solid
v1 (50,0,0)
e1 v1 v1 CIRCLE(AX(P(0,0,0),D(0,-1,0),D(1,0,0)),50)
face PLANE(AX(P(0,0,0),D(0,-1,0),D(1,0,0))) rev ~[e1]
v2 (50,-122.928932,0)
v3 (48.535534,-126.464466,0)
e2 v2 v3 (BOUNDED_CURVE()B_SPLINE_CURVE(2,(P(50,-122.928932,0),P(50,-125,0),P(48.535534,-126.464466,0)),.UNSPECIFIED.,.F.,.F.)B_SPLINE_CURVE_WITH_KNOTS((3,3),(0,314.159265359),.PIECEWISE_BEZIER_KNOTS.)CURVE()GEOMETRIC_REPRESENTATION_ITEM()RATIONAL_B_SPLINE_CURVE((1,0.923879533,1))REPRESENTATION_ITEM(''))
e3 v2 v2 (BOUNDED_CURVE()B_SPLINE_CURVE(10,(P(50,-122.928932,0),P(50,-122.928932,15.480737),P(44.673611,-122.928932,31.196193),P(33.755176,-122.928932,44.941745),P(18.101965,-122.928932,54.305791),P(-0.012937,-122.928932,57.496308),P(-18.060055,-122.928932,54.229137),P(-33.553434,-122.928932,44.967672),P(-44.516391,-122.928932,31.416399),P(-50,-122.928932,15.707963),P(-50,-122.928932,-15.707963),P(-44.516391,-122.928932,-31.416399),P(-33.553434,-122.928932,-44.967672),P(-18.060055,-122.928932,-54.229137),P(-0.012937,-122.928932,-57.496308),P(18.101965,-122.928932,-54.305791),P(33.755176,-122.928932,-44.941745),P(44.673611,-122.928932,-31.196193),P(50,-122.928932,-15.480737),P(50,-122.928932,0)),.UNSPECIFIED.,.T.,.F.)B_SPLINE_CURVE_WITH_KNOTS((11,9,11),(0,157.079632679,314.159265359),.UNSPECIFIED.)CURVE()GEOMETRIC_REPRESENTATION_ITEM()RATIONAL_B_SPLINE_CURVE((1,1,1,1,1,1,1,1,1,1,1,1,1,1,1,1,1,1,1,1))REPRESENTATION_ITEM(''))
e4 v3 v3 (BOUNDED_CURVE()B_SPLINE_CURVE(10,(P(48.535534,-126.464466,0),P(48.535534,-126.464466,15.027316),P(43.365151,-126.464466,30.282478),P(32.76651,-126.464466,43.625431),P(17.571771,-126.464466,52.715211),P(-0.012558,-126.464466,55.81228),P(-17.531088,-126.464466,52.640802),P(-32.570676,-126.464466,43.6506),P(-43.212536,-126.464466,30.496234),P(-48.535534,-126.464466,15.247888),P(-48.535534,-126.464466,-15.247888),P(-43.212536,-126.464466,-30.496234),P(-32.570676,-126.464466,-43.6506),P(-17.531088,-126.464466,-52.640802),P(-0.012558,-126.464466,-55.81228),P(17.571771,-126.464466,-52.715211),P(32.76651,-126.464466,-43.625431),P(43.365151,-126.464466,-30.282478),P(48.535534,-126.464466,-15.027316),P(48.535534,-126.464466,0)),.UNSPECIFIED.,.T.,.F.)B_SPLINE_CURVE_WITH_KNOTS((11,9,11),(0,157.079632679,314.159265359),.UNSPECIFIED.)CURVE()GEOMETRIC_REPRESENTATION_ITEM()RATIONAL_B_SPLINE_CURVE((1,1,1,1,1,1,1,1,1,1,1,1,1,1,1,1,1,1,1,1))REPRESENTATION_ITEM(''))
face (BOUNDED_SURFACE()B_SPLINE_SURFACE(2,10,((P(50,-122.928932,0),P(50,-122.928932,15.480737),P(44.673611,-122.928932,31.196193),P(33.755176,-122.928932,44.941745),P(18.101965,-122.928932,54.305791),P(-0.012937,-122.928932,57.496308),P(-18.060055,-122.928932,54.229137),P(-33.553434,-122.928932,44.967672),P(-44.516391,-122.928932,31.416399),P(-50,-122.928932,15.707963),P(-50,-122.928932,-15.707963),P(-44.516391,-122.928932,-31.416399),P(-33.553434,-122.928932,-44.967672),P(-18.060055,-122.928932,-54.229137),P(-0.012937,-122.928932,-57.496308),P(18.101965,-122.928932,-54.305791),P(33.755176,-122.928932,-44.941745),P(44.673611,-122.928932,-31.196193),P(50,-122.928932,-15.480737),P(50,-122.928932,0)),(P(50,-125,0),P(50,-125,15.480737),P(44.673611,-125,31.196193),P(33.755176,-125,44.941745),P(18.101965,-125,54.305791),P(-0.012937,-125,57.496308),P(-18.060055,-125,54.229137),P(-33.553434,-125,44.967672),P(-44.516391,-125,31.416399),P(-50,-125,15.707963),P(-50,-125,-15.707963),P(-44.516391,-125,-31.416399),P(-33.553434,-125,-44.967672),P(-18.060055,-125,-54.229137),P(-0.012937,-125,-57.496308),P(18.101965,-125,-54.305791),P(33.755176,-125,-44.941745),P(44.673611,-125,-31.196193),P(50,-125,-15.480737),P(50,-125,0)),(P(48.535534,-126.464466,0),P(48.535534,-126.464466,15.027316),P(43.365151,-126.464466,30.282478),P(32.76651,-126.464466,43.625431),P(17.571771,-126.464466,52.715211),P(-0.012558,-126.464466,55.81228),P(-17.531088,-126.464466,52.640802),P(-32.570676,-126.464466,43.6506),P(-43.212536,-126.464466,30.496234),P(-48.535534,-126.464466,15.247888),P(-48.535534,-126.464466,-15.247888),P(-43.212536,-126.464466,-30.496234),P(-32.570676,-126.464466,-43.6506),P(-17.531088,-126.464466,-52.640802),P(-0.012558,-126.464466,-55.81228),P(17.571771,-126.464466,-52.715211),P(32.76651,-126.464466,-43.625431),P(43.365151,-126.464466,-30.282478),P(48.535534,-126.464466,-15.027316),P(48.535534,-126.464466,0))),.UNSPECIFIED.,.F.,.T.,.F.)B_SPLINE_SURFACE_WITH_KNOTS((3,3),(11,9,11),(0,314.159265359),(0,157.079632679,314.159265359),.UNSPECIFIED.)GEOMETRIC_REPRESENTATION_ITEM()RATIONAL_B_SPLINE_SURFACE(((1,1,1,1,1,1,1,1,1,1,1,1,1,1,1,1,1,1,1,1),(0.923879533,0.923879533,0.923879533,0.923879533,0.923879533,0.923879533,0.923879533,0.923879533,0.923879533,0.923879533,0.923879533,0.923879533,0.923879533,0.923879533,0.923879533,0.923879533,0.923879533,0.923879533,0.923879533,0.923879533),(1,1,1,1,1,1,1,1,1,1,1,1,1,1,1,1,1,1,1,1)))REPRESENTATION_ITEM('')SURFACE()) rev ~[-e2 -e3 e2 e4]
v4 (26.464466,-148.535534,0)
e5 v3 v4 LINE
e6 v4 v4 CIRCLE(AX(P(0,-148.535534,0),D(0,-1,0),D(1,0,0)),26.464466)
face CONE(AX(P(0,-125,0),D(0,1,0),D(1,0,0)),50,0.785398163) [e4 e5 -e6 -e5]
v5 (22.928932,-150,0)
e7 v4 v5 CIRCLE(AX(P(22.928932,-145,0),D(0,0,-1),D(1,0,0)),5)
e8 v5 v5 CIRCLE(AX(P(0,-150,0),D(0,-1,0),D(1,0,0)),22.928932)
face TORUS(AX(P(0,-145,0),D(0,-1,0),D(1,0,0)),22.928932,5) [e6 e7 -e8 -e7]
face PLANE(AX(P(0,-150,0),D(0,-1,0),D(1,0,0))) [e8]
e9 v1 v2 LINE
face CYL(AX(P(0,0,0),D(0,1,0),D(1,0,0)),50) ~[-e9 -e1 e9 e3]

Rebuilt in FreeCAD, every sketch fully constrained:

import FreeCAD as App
import Part
import Sketcher
Q = App.Units.Quantity


def edges_at(feature, points):
    """Names of the edges that pass closest to the given points."""
    edges = feature.Shape.Edges
    near = lambda p: min(range(len(edges)), key=lambda i: edges[i].distToShape(Part.Vertex(*p))[0])
    return sorted({f"Edge{near(p) + 1}" for p in points})

doc = App.newDocument("Part")
body = doc.addObject("PartDesign::Body", "Body")

sketch1 = body.newObject("Sketcher::SketchObject", "Sketch")
sketch1.AttachmentSupport = (doc.getObject("XZ_Plane"), [""])
sketch1.MapMode = "FlatFace"
sketch1.addGeometry(Part.Circle(App.Vector(0, 0, 0), App.Vector(0, 0, 1), 50), False)
sketch1.addConstraint([
    Sketcher.Constraint("Coincident", 0, 3, -1, 1),
    Sketcher.Constraint("Diameter", 0, Q("100 mm")),
])
pad1 = body.newObject("PartDesign::Pad", "Pad")
pad1.Profile = sketch1
pad1.Length = 150
doc.recompute()

chamfer = body.newObject("PartDesign::Chamfer", "Chamfer")
chamfer.Base = (pad1, edges_at(pad1, [(-50, -150, 0)]))
chamfer.Size = 25
doc.recompute()

fillet = body.newObject("PartDesign::Fillet", "Fillet")
fillet.Base = (chamfer, edges_at(chamfer, [(37.5, -137.5, 0), (-50, -125, 0), (-25, -150, 0)]))
fillet.Radius = 5

doc.recompute()
